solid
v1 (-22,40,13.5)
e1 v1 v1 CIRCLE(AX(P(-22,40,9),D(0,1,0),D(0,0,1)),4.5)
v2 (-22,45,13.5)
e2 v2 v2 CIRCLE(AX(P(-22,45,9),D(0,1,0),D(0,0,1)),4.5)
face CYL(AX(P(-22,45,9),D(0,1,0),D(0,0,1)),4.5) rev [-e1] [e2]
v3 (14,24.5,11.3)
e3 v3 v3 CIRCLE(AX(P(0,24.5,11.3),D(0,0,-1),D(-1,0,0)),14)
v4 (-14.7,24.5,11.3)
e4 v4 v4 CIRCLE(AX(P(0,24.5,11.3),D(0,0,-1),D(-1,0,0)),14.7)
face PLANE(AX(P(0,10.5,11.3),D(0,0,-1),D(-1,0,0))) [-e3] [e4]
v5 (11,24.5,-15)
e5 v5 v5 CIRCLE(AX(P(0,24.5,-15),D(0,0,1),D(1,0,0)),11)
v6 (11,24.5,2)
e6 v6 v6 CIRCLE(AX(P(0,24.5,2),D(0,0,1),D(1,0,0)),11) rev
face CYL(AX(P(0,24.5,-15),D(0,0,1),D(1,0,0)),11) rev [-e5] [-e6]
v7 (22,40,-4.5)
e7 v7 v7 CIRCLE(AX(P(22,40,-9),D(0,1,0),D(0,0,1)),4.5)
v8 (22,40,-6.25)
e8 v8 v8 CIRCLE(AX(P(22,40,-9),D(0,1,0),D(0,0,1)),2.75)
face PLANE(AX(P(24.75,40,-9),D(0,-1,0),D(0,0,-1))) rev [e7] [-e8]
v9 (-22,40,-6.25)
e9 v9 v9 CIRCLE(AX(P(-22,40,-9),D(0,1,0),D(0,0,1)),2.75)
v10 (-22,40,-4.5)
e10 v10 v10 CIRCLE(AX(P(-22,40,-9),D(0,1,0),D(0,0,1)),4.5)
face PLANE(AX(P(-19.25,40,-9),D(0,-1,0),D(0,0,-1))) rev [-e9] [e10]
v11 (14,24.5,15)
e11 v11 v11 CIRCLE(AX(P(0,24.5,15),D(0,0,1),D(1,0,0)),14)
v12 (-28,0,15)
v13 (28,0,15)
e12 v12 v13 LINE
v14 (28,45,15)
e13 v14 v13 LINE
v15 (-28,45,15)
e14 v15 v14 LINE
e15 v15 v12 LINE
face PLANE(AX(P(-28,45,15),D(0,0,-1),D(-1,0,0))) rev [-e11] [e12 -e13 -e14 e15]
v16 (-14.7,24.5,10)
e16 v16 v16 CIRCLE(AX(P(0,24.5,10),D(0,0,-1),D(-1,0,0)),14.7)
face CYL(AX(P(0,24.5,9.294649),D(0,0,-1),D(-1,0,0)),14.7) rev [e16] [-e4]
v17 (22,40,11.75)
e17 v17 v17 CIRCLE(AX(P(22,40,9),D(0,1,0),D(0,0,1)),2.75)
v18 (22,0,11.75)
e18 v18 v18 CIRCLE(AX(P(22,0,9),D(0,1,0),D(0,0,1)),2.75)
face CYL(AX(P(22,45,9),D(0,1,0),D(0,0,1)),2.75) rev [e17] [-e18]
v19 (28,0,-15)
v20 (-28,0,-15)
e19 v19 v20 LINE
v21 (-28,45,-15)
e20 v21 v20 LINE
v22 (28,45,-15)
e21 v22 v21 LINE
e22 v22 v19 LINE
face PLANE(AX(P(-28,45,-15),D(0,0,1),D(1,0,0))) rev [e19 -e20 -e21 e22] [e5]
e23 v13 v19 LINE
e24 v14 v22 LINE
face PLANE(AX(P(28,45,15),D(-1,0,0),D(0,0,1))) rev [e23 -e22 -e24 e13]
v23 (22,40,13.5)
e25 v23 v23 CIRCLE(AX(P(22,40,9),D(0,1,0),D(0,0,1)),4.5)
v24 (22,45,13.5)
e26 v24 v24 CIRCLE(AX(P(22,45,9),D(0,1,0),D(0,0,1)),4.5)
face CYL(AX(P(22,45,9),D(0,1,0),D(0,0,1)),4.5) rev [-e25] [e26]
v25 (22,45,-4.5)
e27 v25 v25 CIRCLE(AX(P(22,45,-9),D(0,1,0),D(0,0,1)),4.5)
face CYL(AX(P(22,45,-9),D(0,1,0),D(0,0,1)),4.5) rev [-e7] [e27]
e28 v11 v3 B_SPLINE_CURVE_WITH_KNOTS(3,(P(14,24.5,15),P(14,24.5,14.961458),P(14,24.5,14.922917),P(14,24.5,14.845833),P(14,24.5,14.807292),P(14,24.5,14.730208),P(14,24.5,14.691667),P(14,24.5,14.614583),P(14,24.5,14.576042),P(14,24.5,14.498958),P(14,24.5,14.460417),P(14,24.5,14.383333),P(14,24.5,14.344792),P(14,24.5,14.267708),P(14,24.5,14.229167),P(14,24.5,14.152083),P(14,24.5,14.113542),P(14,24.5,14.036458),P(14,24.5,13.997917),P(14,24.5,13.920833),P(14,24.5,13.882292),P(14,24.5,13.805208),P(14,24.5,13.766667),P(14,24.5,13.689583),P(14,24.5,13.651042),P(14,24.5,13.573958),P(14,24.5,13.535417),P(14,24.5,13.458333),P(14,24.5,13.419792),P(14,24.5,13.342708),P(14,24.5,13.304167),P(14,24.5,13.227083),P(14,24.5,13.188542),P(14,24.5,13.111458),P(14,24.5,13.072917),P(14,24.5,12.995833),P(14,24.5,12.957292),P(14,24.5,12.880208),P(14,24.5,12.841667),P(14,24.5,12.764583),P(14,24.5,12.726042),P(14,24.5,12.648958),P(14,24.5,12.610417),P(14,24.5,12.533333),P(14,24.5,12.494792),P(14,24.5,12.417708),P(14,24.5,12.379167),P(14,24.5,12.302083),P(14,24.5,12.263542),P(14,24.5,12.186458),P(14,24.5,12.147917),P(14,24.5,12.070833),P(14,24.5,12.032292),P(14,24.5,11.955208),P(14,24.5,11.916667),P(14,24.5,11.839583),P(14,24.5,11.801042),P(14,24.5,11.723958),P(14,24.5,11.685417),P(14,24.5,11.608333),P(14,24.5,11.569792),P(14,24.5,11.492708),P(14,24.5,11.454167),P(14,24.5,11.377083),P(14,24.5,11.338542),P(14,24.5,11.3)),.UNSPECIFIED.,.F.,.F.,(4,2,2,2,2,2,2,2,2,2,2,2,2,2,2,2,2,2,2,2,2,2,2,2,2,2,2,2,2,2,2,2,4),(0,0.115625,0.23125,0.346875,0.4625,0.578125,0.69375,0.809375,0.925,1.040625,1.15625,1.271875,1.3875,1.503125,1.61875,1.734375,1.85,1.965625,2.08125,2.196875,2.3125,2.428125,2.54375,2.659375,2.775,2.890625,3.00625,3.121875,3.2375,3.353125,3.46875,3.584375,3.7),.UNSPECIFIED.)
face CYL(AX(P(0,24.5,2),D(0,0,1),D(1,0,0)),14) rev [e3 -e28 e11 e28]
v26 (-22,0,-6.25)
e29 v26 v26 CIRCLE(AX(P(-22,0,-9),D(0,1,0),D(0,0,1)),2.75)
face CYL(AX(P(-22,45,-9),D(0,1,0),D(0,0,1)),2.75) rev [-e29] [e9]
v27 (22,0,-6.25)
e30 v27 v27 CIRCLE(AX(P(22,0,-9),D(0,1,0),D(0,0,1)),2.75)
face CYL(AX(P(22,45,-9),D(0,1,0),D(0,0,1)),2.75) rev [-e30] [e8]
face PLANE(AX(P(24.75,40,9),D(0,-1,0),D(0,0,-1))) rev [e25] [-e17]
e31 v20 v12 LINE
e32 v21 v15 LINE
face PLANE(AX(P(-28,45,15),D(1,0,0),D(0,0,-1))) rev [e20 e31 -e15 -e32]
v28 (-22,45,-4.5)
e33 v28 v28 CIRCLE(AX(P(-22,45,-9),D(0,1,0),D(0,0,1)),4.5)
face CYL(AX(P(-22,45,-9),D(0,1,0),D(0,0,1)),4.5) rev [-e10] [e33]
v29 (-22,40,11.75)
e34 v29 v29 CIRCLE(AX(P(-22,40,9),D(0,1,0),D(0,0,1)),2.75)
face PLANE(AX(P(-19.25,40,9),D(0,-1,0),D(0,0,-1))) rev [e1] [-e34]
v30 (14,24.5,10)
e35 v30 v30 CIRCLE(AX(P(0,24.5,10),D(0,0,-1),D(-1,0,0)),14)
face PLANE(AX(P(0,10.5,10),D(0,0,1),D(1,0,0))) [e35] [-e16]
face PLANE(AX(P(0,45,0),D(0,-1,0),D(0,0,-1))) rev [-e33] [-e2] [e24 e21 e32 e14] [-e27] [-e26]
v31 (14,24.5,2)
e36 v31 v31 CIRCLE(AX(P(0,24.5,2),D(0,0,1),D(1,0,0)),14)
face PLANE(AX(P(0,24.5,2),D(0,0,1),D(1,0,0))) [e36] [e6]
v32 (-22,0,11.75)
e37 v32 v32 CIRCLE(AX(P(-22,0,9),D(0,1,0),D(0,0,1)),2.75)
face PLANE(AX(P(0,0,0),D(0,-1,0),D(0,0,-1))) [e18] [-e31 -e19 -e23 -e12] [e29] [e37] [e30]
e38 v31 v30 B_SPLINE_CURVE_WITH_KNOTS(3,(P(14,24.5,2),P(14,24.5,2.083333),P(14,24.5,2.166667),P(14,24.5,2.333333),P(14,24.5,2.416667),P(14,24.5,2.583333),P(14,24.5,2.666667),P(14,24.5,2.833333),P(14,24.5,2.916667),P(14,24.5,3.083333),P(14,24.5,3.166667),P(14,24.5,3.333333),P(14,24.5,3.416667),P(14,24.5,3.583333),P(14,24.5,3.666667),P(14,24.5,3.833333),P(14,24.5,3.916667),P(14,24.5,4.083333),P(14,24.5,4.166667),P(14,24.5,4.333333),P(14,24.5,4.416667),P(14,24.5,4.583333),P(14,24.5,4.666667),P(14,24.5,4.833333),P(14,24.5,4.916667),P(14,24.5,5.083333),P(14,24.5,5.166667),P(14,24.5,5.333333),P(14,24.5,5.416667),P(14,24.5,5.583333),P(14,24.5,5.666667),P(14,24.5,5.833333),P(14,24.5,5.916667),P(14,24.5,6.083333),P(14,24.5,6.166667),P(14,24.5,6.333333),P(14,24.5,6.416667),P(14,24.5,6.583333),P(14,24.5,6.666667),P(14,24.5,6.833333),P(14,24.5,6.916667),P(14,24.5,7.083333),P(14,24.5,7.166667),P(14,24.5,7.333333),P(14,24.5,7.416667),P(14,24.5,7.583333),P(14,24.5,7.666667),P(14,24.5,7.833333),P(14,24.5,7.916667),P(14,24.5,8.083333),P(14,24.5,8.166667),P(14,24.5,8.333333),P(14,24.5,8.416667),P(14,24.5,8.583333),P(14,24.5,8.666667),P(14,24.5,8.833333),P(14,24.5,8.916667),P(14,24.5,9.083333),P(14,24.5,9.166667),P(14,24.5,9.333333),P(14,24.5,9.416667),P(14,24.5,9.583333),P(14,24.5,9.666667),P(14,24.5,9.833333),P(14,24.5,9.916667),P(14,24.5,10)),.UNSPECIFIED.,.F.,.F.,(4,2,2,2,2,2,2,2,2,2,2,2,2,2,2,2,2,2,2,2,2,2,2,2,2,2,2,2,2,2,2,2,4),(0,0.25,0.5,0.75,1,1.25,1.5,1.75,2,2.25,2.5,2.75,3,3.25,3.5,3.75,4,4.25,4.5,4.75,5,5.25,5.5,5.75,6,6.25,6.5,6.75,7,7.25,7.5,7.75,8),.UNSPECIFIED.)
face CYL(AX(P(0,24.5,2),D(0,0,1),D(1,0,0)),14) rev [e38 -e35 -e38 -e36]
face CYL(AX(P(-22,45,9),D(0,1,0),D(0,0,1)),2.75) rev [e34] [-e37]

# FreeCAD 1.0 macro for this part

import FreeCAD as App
import Part
import Sketcher

V = App.Vector
Q = App.Units.Quantity


def add_polygon(sketch, points):
    """Adds a closed chain of lines whose ends are joined by coincident constraints."""
    first, n = sketch.GeometryCount, len(points)
    for a, b in zip(points, points[1:] + points[:1]):
        sketch.addGeometry(Part.LineSegment(App.Vector(*a, 0), App.Vector(*b, 0)), False)
    for i in range(n):
        sketch.addConstraint(Sketcher.Constraint("Coincident", first + i, 2, first + (i + 1) % n, 1))

doc = App.newDocument("Part")
params = doc.addObject("Spreadsheet::Sheet", "Params")
for row, (alias, value) in enumerate([
    ("sketch1_width", "56 mm"),
    ("sketch1_height", "30 mm"),
    ("pad1_length", "45 mm"),
    ("sketch2_diameter", "22 mm"),
    ("sketch3_diameter", "28 mm"),
    ("pocket2_length", "13 mm"),
    ("sketch4_diameter", "5.5 mm"),
    ("hole_diameter", "5.5 mm"),
    ("hole_cbore_diameter", "9 mm"),
    ("hole_cbore_depth", "5 mm"),
    ("sketch5_width", "0.7 mm"),
    ("sketch5_height", "1.3 mm"),
    ("groove_angle", "360 deg"),
], start=1):
    params.set(f"A{row}", alias)
    params.set(f"B{row}", "=" + value)
    params.setAlias(f"B{row}", alias)

body = doc.addObject("PartDesign::Body", "Body")

sketch1 = body.newObject("Sketcher::SketchObject", "Sketch")
sketch1.AttachmentSupport = (doc.getObject("XZ_Plane"), [""])
sketch1.MapMode = "FlatFace"
add_polygon(sketch1, [(-28, -15), (-28, 15), (28, 15), (28, -15)])
sketch1.addConstraint([
    Sketcher.Constraint("Vertical", 0),
    Sketcher.Constraint("Horizontal", 1),
    Sketcher.Constraint("Vertical", 2),
    Sketcher.Constraint("Horizontal", 3),
    Sketcher.Constraint("Symmetric", 0, 2, 2, 2, -1, 1),
    Sketcher.Constraint("DistanceX", 1, 1, 1, 2, Q("56 mm")),
    Sketcher.Constraint("DistanceY", 0, 1, 0, 2, Q("30 mm")),
])
sketch1.setExpression("Constraints[9]", "Params.sketch1_width")
sketch1.setExpression("Constraints[10]", "Params.sketch1_height")
pad1 = body.newObject("PartDesign::Pad", "Pad")
pad1.Profile = sketch1
pad1.setExpression("Length", "Params.pad1_length")
pad1.Reversed = True

sketch2 = body.newObject("Sketcher::SketchObject", "Sketch001")
sketch2.AttachmentSupport = (doc.getObject("XY_Plane"), [""])
sketch2.MapMode = "FlatFace"
sketch2.AttachmentOffset = App.Placement(V(0, 0, 15), App.Rotation())
sketch2.addGeometry(Part.Circle(V(0, 24, 0), V(0, 0, 1), 11), False)
sketch2.addConstraint([
    Sketcher.Constraint("PointOnObject", 0, 3, -2),
    Sketcher.Constraint("Diameter", 0, Q("22 mm")),
    Sketcher.Constraint("DistanceY", -1, 1, 0, 3, Q("24.5 mm")),
])
sketch2.setExpression("Constraints[1]", "Params.sketch2_diameter")
pocket1 = body.newObject("PartDesign::Pocket", "Pocket")
pocket1.Profile = sketch2
pocket1.Type = "ThroughAll"

sketch3 = body.newObject("Sketcher::SketchObject", "Sketch002")
sketch3.AttachmentSupport = (doc.getObject("XY_Plane"), [""])
sketch3.MapMode = "FlatFace"
sketch3.AttachmentOffset = App.Placement(V(0, 0, 15), App.Rotation())
sketch3.addGeometry(Part.Circle(V(0, 24, 0), V(0, 0, 1), 14), False)
sketch3.addConstraint([
    Sketcher.Constraint("PointOnObject", 0, 3, -2),
    Sketcher.Constraint("Diameter", 0, Q("28 mm")),
    Sketcher.Constraint("DistanceY", -1, 1, 0, 3, Q("24.5 mm")),
])
sketch3.setExpression("Constraints[1]", "Params.sketch3_diameter")
pocket2 = body.newObject("PartDesign::Pocket", "Pocket001")
pocket2.Profile = sketch3
pocket2.setExpression("Length", "Params.pocket2_length")

sketch4 = body.newObject("Sketcher::SketchObject", "Sketch003")
sketch4.AttachmentSupport = (doc.getObject("XZ_Plane"), [""])
sketch4.MapMode = "FlatFace"
sketch4.AttachmentOffset = App.Placement(V(0, 0, -45), App.Rotation())
sketch4.addGeometry([
    Part.Circle(V(22, -9, 0), V(0, 0, 1), 2.8),
    Part.Circle(V(22, 9, 0), V(0, 0, 1), 2.8),
    Part.Circle(V(-22, 9, 0), V(0, 0, 1), 2.8),
    Part.Circle(V(-22, -9, 0), V(0, 0, 1), 2.8),
], False)
sketch4.addConstraint([
    Sketcher.Constraint("Equal", 0, 1),
    Sketcher.Constraint("Equal", 1, 2),
    Sketcher.Constraint("Equal", 2, 3),
    Sketcher.Constraint("Symmetric", 0, 3, 2, 3, -1, 1),
    Sketcher.Constraint("Symmetric", 1, 3, 3, 3, -1, 1),
    Sketcher.Constraint("Symmetric", 1, 3, 2, 3, -2),
    Sketcher.Constraint("Diameter", 0, Q("5.5 mm")),
    Sketcher.Constraint("DistanceX", -1, 1, 0, 3, Q("22 mm")),
    Sketcher.Constraint("DistanceY", 0, 3, -1, 1, Q("9 mm")),
])
sketch4.setExpression("Constraints[6]", "Params.sketch4_diameter")
doc.recompute()
hole = body.newObject("PartDesign::Hole", "Hole")
hole.Profile = sketch4
hole.ThreadType = "None"
hole.setExpression("Diameter", "Params.hole_diameter")
hole.DepthType = "ThroughAll"
hole.HoleCutType = "Counterbore"
hole.setExpression("HoleCutDiameter", "Params.hole_cbore_diameter")
hole.setExpression("HoleCutDepth", "Params.hole_cbore_depth")
hole.Reversed = True

sketch5 = body.newObject("Sketcher::SketchObject", "Sketch004")
sketch5.AttachmentSupport = (doc.getObject("YZ_Plane"), [""])
sketch5.MapMode = "FlatFace"
add_polygon(sketch5, [(10.5, 11.3), (9.8, 11.3), (9.8, 10), (10.5, 10)])
sketch5.addGeometry(Part.LineSegment(V(24.5, 10, 0), V(24.5, 11.3, 0)), True)
sketch5.addConstraint([
    Sketcher.Constraint("Horizontal", 0),
    Sketcher.Constraint("Vertical", 1),
    Sketcher.Constraint("Horizontal", 2),
    Sketcher.Constraint("Vertical", 3),
    Sketcher.Constraint("Vertical", 4),
    Sketcher.Constraint("Horizontal", 2, 2, 4, 1),
    Sketcher.Constraint("Horizontal", 3, 2, 4, 2),
    Sketcher.Constraint("DistanceX", 0, 2, 0, 1, Q("0.7 mm")),
    Sketcher.Constraint("DistanceY", 1, 2, 1, 1, Q("1.3 mm")),
    Sketcher.Constraint("DistanceY", -1, 1, 1, 2, Q("10 mm")),
    Sketcher.Constraint("DistanceX", 2, 2, 4, 1, Q("14 mm")),
    Sketcher.Constraint("DistanceX", -1, 1, 0, 2, Q("9.8 mm")),
])
sketch5.setExpression("Constraints[11]", "Params.sketch5_width")
sketch5.setExpression("Constraints[12]", "Params.sketch5_height")
groove = body.newObject("PartDesign::Groove", "Groove")
groove.Profile = sketch5
groove.ReferenceAxis = (sketch5, ["Axis0"])
groove.setExpression("Angle", "Params.groove_angle")

doc.recompute()
